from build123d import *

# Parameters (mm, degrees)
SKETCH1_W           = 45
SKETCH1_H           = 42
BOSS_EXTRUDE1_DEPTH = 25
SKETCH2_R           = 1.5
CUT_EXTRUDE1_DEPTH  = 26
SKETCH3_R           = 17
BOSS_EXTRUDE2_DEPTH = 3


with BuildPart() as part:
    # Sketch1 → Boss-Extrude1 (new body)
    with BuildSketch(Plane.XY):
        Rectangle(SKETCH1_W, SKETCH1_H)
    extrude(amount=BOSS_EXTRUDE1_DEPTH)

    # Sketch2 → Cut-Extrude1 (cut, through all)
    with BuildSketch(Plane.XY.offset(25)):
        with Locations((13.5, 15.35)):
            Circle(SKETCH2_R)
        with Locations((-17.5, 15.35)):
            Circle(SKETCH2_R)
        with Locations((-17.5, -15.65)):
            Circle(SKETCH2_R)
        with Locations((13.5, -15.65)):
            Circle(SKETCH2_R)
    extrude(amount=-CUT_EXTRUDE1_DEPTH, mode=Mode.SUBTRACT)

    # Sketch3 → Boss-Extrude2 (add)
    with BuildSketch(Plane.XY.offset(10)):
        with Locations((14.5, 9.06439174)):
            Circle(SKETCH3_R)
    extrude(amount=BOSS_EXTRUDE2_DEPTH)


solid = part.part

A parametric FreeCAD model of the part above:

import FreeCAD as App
import Part
import Sketcher


def add_polygon(sketch, points):
    """Adds a closed chain of lines whose ends are joined by coincident constraints."""
    first, n = sketch.GeometryCount, len(points)
    for a, b in zip(points, points[1:] + points[:1]):
        sketch.addGeometry(Part.LineSegment(App.Vector(*a, 0), App.Vector(*b, 0)), False)
    for i in range(n):
        sketch.addConstraint(Sketcher.Constraint("Coincident", first + i, 2, first + (i + 1) % n, 1))

doc = App.newDocument("Part")
body = doc.addObject("PartDesign::Body", "Body")

sketch1 = body.newObject("Sketcher::SketchObject", "Sketch")
sketch1.AttachmentSupport = (doc.getObject("XY_Plane"), [""])
sketch1.MapMode = "FlatFace"
add_polygon(sketch1, [(-22, 21), (-22, -21), (22, -21), (22, 21)])
sketch1.addConstraint(Sketcher.Constraint("Vertical", 0))
sketch1.addConstraint(Sketcher.Constraint("Horizontal", 1))
sketch1.addConstraint(Sketcher.Constraint("Vertical", 2))
sketch1.addConstraint(Sketcher.Constraint("Horizontal", 3))
sketch1.addConstraint(Sketcher.Constraint("Symmetric", 0, 2, 2, 2, -1, 1))
sketch1.addConstraint(Sketcher.Constraint("DistanceX", 1, 1, 1, 2, 45.0))
sketch1.addConstraint(Sketcher.Constraint("DistanceY", 0, 2, 0, 1, 42.0))
pad1 = body.newObject("PartDesign::Pad", "Pad")
pad1.Profile = sketch1
pad1.Length = 25

sketch2 = body.newObject("Sketcher::SketchObject", "Sketch001")
sketch2.AttachmentSupport = (doc.getObject("XY_Plane"), [""])
sketch2.MapMode = "FlatFace"
sketch2.AttachmentOffset = App.Placement(App.Vector(0, 0, 25), App.Rotation())
sketch2.addGeometry(Part.Circle(App.Vector(13.5, 15.3, 0), App.Vector(0, 0, 1), 1.5), False)
sketch2.addGeometry(Part.Circle(App.Vector(-17.5, 15.3, 0), App.Vector(0, 0, 1), 1.5), False)
sketch2.addGeometry(Part.Circle(App.Vector(-17.5, -15.7, 0), App.Vector(0, 0, 1), 1.5), False)
sketch2.addGeometry(Part.Circle(App.Vector(13.5, -15.7, 0), App.Vector(0, 0, 1), 1.5), False)
sketch2.addConstraint(Sketcher.Constraint("Equal", 0, 1))
sketch2.addConstraint(Sketcher.Constraint("Equal", 1, 2))
sketch2.addConstraint(Sketcher.Constraint("Equal", 2, 3))
sketch2.addConstraint(Sketcher.Constraint("Horizontal", 0, 3, 1, 3))
sketch2.addConstraint(Sketcher.Constraint("Horizontal", 2, 3, 3, 3))
sketch2.addConstraint(Sketcher.Constraint("Vertical", 1, 3, 2, 3))
sketch2.addConstraint(Sketcher.Constraint("Vertical", 0, 3, 3, 3))
sketch2.addConstraint(Sketcher.Constraint("Diameter", 0, 3.0))
sketch2.addConstraint(Sketcher.Constraint("DistanceX", 1, 3, 0, 3, 31.0))
sketch2.addConstraint(Sketcher.Constraint("DistanceY", 2, 3, 1, 3, 31.0))
sketch2.addConstraint(Sketcher.Constraint("DistanceX", -1, 1, 0, 3, 13.5))
sketch2.addConstraint(Sketcher.Constraint("DistanceY", -1, 1, 0, 3, 15.35))
pocket1 = body.newObject("PartDesign::Pocket", "Pocket")
pocket1.Profile = sketch2
pocket1.Type = "ThroughAll"

sketch3 = body.newObject("Sketcher::SketchObject", "Sketch002")
sketch3.AttachmentSupport = (doc.getObject("XY_Plane"), [""])
sketch3.MapMode = "FlatFace"
sketch3.AttachmentOffset = App.Placement(App.Vector(0, 0, 10), App.Rotation())
sketch3.addGeometry(Part.Circle(App.Vector(14, 9, 0), App.Vector(0, 0, 1), 17), False)
sketch3.addConstraint(Sketcher.Constraint("Diameter", 0, 34.0))
sketch3.addConstraint(Sketcher.Constraint("DistanceX", -1, 1, 0, 3, 14.5))
sketch3.addConstraint(Sketcher.Constraint("DistanceY", -1, 1, 0, 3, 9.064392))
pad2 = body.newObject("PartDesign::Pad", "Pad001")
pad2.Profile = sketch3
pad2.Length = 3

doc.recompute()
